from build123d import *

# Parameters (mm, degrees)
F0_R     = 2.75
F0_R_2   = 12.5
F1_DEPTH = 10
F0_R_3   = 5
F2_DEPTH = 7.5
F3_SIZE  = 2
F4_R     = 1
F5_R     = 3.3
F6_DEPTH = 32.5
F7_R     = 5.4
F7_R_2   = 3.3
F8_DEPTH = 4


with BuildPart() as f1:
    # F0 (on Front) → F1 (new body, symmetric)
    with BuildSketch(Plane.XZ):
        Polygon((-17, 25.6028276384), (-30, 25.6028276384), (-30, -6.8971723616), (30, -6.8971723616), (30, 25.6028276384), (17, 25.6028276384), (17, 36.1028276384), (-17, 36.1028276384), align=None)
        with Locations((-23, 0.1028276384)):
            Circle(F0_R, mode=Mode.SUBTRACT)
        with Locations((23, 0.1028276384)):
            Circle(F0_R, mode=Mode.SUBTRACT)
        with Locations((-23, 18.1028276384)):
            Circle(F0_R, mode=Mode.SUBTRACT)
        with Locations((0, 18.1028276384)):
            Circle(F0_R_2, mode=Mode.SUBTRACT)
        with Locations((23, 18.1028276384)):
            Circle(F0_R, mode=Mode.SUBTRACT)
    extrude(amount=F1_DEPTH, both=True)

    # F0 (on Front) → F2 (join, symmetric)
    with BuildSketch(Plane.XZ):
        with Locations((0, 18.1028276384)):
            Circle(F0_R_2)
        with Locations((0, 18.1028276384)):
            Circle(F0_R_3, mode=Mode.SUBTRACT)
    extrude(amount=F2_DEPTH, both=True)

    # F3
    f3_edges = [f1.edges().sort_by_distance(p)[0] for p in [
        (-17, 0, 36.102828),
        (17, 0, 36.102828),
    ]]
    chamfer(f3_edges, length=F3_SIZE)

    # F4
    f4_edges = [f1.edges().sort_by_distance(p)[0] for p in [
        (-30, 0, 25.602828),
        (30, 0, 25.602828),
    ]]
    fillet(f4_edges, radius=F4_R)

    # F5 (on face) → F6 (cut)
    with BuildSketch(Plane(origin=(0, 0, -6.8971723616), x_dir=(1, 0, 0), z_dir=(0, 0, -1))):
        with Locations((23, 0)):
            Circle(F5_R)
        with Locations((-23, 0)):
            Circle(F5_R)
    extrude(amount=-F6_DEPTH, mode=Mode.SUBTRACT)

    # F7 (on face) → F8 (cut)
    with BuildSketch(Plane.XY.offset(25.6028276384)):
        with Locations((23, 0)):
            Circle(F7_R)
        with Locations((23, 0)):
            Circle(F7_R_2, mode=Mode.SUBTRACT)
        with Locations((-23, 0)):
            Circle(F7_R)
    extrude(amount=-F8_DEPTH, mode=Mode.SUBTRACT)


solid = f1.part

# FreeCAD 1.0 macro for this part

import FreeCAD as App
import Part
import Sketcher

V = App.Vector
Q = App.Units.Quantity


def edges_at(feature, points):
    """Names of the edges that pass closest to the given points."""
    edges = feature.Shape.Edges
    near = lambda p: min(range(len(edges)), key=lambda i: edges[i].distToShape(Part.Vertex(*p))[0])
    return sorted({f"Edge{near(p) + 1}" for p in points})

doc = App.newDocument("Part")
params = doc.addObject("Spreadsheet::Sheet", "Params")
for row, (alias, value) in enumerate([
    ("sketch1_diameter", "25 mm"),
    ("sketch1_diameter2", "5.5 mm"),
    ("sketch1_width", "13 mm"),
    ("sketch1_width2", "60 mm"),
    ("sketch1_height", "32.5 mm"),
    ("pad1_length", "20 mm"),
    ("sketch2_diameter", "25 mm"),
    ("sketch2_diameter2", "10 mm"),
    ("pad2_length", "15 mm"),
    ("chamfer_size", "2 mm"),
    ("fillet_radius", "1 mm"),
    ("sketch3_diameter", "6.6 mm"),
    ("pocket1_length", "32.5 mm"),
    ("sketch4_diameter", "10.8 mm"),
    ("sketch4_diameter2", "6.6 mm"),
    ("pocket2_length", "4 mm"),
], start=1):
    params.set(f"A{row}", alias)
    params.set(f"B{row}", "=" + value)
    params.setAlias(f"B{row}", alias)

body = doc.addObject("PartDesign::Body", "Body")

sketch1 = body.newObject("Sketcher::SketchObject", "Sketch")
sketch1.AttachmentSupport = (doc.getObject("XZ_Plane"), [""])
sketch1.MapMode = "FlatFace"
sketch1.addGeometry(Part.LineSegment(V(-17, 25.6, 0), V(-30, 25.6, 0)), False)
sketch1.addGeometry(Part.LineSegment(V(-30, 25.6, 0), V(-30, -6.9, 0)), False)
sketch1.addGeometry(Part.LineSegment(V(-30, -6.9, 0), V(30, -6.9, 0)), False)
sketch1.addGeometry(Part.LineSegment(V(30, -6.9, 0), V(30, 25.6, 0)), False)
sketch1.addGeometry(Part.LineSegment(V(30, 25.6, 0), V(17, 25.6, 0)), False)
sketch1.addGeometry(Part.LineSegment(V(17, 25.6, 0), V(17, 36.1, 0)), False)
sketch1.addGeometry(Part.LineSegment(V(17, 36.1, 0), V(-17, 36.1, 0)), False)
sketch1.addGeometry(Part.LineSegment(V(-17, 36.1, 0), V(-17, 25.6, 0)), False)
sketch1.addGeometry(Part.Circle(V(-23, 0.1, 0), V(0, 0, 1), 2.8), False)
sketch1.addGeometry(Part.Circle(V(23, 0.1, 0), V(0, 0, 1), 2.8), False)
sketch1.addGeometry(Part.Circle(V(-23, 18.1, 0), V(0, 0, 1), 2.8), False)
sketch1.addGeometry(Part.Circle(V(0, 18.1, 0), V(0, 0, 1), 12.5), False)
sketch1.addGeometry(Part.Circle(V(23, 18.1, 0), V(0, 0, 1), 2.8), False)
sketch1.addConstraint(Sketcher.Constraint("Coincident", 0, 2, 1, 1))
sketch1.addConstraint(Sketcher.Constraint("Coincident", 1, 2, 2, 1))
sketch1.addConstraint(Sketcher.Constraint("Coincident", 2, 2, 3, 1))
sketch1.addConstraint(Sketcher.Constraint("Coincident", 3, 2, 4, 1))
sketch1.addConstraint(Sketcher.Constraint("Coincident", 4, 2, 5, 1))
sketch1.addConstraint(Sketcher.Constraint("Coincident", 5, 2, 6, 1))
sketch1.addConstraint(Sketcher.Constraint("Coincident", 6, 2, 7, 1))
sketch1.addConstraint(Sketcher.Constraint("Coincident", 7, 2, 0, 1))
sketch1.addConstraint(Sketcher.Constraint("Horizontal", 0))
sketch1.addConstraint(Sketcher.Constraint("Vertical", 1))
sketch1.addConstraint(Sketcher.Constraint("Horizontal", 2))
sketch1.addConstraint(Sketcher.Constraint("Vertical", 3))
sketch1.addConstraint(Sketcher.Constraint("Horizontal", 4))
sketch1.addConstraint(Sketcher.Constraint("Vertical", 5))
sketch1.addConstraint(Sketcher.Constraint("Horizontal", 6))
sketch1.addConstraint(Sketcher.Constraint("Vertical", 7))
sketch1.addConstraint(Sketcher.Constraint("Equal", 8, 9))
sketch1.addConstraint(Sketcher.Constraint("Equal", 9, 10))
sketch1.addConstraint(Sketcher.Constraint("Equal", 10, 12))
sketch1.addConstraint(Sketcher.Constraint("Symmetric", 8, 3, 9, 3, -2))
sketch1.addConstraint(Sketcher.Constraint("Symmetric", 10, 3, 12, 3, -2))
sketch1.addConstraint(Sketcher.Constraint("Symmetric", 0, 2, 3, 2, -2))
sketch1.addConstraint(Sketcher.Constraint("PointOnObject", 11, 3, -2))
sketch1.addConstraint(Sketcher.Constraint("Horizontal", 10, 3, 11, 3))
sketch1.addConstraint(Sketcher.Constraint("Vertical", 8, 3, 10, 3))
sketch1.addConstraint(Sketcher.Constraint("Equal", 0, 4))
sketch1.addConstraint(Sketcher.Constraint("Diameter", 11, Q("25 mm")))
sketch1.addConstraint(Sketcher.Constraint("Diameter", 8, Q("5.5 mm")))
sketch1.addConstraint(Sketcher.Constraint("DistanceX", 0, 2, 0, 1, Q("13 mm")))
sketch1.addConstraint(Sketcher.Constraint("DistanceX", 2, 1, 2, 2, Q("60 mm")))
sketch1.addConstraint(Sketcher.Constraint("DistanceY", 1, 2, 1, 1, Q("32.5 mm")))
sketch1.addConstraint(Sketcher.Constraint("DistanceY", 5, 1, 5, 2, Q("10.5 mm")))
sketch1.addConstraint(Sketcher.Constraint("DistanceX", 8, 3, -1, 1, Q("23 mm")))
sketch1.addConstraint(Sketcher.Constraint("DistanceY", 8, 3, 10, 3, Q("18 mm")))
sketch1.addConstraint(Sketcher.Constraint("DistanceY", 1, 2, 8, 3, Q("7 mm")))
sketch1.addConstraint(Sketcher.Constraint("DistanceY", -1, 1, 8, 3, Q("0.102828 mm")))
sketch1.setExpression("Constraints[26]", "Params.sketch1_diameter")
sketch1.setExpression("Constraints[27]", "Params.sketch1_diameter2")
sketch1.setExpression("Constraints[28]", "Params.sketch1_width")
sketch1.setExpression("Constraints[29]", "Params.sketch1_width2")
sketch1.setExpression("Constraints[30]", "Params.sketch1_height")
pad1 = body.newObject("PartDesign::Pad", "Pad")
pad1.Profile = sketch1
pad1.setExpression("Length", "Params.pad1_length")
pad1.Midplane = True

sketch2 = body.newObject("Sketcher::SketchObject", "Sketch001")
sketch2.AttachmentSupport = (doc.getObject("XZ_Plane"), [""])
sketch2.MapMode = "FlatFace"
sketch2.addGeometry(Part.Circle(V(0, 18, 0), V(0, 0, 1), 12), False)
sketch2.addGeometry(Part.Circle(V(0, 18, 0), V(0, 0, 1), 5), False)
sketch2.addConstraint(Sketcher.Constraint("Coincident", 1, 3, 0, 3))
sketch2.addConstraint(Sketcher.Constraint("PointOnObject", 0, 3, -2))
sketch2.addConstraint(Sketcher.Constraint("Diameter", 0, Q("25 mm")))
sketch2.addConstraint(Sketcher.Constraint("Diameter", 1, Q("10 mm")))
sketch2.addConstraint(Sketcher.Constraint("DistanceY", -1, 1, 0, 3, Q("18.102828 mm")))
sketch2.setExpression("Constraints[2]", "Params.sketch2_diameter")
sketch2.setExpression("Constraints[3]", "Params.sketch2_diameter2")
pad2 = body.newObject("PartDesign::Pad", "Pad001")
pad2.Profile = sketch2
pad2.setExpression("Length", "Params.pad2_length")
pad2.Midplane = True
doc.recompute()

chamfer = body.newObject("PartDesign::Chamfer", "Chamfer")
chamfer.Base = (pad2, edges_at(pad2, [(-17, 0, 36.103), (17, 0, 36.103)]))
chamfer.setExpression("Size", "Params.chamfer_size")
doc.recompute()

fillet = body.newObject("PartDesign::Fillet", "Fillet")
fillet.Base = (chamfer, edges_at(chamfer, [(-30, 0, 25.603), (30, 0, 25.603)]))
fillet.setExpression("Radius", "Params.fillet_radius")

sketch3 = body.newObject("Sketcher::SketchObject", "Sketch002")
sketch3.AttachmentSupport = (doc.getObject("XY_Plane"), [""])
sketch3.MapMode = "FlatFace"
sketch3.AttachmentOffset = App.Placement(V(0, 0, -6.897172), App.Rotation())
sketch3.addGeometry(Part.Circle(V(23, 0, 0), V(0, 0, 1), 3.3), False)
sketch3.addGeometry(Part.Circle(V(-23, 0, 0), V(0, 0, 1), 3.3), False)
sketch3.addConstraint(Sketcher.Constraint("Equal", 0, 1))
sketch3.addConstraint(Sketcher.Constraint("Symmetric", 0, 3, 1, 3, -1, 1))
sketch3.addConstraint(Sketcher.Constraint("PointOnObject", 0, 3, -1))
sketch3.addConstraint(Sketcher.Constraint("Diameter", 0, Q("6.6 mm")))
sketch3.addConstraint(Sketcher.Constraint("DistanceX", -1, 1, 0, 3, Q("23 mm")))
sketch3.setExpression("Constraints[3]", "Params.sketch3_diameter")
pocket1 = body.newObject("PartDesign::Pocket", "Pocket")
pocket1.Profile = sketch3
pocket1.setExpression("Length", "Params.pocket1_length")
pocket1.Reversed = True

sketch4 = body.newObject("Sketcher::SketchObject", "Sketch003")
sketch4.AttachmentSupport = (doc.getObject("XY_Plane"), [""])
sketch4.MapMode = "FlatFace"
sketch4.AttachmentOffset = App.Placement(V(0, 0, 25.602828), App.Rotation())
sketch4.addGeometry(Part.Circle(V(23, 0, 0), V(0, 0, 1), 5.4), False)
sketch4.addGeometry(Part.Circle(V(23, 0, 0), V(0, 0, 1), 3.3), False)
sketch4.addGeometry(Part.Circle(V(-23, 0, 0), V(0, 0, 1), 5.4), False)
sketch4.addConstraint(Sketcher.Constraint("Coincident", 1, 3, 0, 3))
sketch4.addConstraint(Sketcher.Constraint("Equal", 0, 2))
sketch4.addConstraint(Sketcher.Constraint("Symmetric", 0, 3, 2, 3, -1, 1))
sketch4.addConstraint(Sketcher.Constraint("PointOnObject", 0, 3, -1))
sketch4.addConstraint(Sketcher.Constraint("Diameter", 0, Q("10.8 mm")))
sketch4.addConstraint(Sketcher.Constraint("Diameter", 1, Q("6.6 mm")))
sketch4.addConstraint(Sketcher.Constraint("DistanceX", -1, 1, 0, 3, Q("23 mm")))
sketch4.setExpression("Constraints[4]", "Params.sketch4_diameter")
sketch4.setExpression("Constraints[5]", "Params.sketch4_diameter2")
pocket2 = body.newObject("PartDesign::Pocket", "Pocket001")
pocket2.Profile = sketch4
pocket2.setExpression("Length", "Params.pocket2_length")

doc.recompute()
